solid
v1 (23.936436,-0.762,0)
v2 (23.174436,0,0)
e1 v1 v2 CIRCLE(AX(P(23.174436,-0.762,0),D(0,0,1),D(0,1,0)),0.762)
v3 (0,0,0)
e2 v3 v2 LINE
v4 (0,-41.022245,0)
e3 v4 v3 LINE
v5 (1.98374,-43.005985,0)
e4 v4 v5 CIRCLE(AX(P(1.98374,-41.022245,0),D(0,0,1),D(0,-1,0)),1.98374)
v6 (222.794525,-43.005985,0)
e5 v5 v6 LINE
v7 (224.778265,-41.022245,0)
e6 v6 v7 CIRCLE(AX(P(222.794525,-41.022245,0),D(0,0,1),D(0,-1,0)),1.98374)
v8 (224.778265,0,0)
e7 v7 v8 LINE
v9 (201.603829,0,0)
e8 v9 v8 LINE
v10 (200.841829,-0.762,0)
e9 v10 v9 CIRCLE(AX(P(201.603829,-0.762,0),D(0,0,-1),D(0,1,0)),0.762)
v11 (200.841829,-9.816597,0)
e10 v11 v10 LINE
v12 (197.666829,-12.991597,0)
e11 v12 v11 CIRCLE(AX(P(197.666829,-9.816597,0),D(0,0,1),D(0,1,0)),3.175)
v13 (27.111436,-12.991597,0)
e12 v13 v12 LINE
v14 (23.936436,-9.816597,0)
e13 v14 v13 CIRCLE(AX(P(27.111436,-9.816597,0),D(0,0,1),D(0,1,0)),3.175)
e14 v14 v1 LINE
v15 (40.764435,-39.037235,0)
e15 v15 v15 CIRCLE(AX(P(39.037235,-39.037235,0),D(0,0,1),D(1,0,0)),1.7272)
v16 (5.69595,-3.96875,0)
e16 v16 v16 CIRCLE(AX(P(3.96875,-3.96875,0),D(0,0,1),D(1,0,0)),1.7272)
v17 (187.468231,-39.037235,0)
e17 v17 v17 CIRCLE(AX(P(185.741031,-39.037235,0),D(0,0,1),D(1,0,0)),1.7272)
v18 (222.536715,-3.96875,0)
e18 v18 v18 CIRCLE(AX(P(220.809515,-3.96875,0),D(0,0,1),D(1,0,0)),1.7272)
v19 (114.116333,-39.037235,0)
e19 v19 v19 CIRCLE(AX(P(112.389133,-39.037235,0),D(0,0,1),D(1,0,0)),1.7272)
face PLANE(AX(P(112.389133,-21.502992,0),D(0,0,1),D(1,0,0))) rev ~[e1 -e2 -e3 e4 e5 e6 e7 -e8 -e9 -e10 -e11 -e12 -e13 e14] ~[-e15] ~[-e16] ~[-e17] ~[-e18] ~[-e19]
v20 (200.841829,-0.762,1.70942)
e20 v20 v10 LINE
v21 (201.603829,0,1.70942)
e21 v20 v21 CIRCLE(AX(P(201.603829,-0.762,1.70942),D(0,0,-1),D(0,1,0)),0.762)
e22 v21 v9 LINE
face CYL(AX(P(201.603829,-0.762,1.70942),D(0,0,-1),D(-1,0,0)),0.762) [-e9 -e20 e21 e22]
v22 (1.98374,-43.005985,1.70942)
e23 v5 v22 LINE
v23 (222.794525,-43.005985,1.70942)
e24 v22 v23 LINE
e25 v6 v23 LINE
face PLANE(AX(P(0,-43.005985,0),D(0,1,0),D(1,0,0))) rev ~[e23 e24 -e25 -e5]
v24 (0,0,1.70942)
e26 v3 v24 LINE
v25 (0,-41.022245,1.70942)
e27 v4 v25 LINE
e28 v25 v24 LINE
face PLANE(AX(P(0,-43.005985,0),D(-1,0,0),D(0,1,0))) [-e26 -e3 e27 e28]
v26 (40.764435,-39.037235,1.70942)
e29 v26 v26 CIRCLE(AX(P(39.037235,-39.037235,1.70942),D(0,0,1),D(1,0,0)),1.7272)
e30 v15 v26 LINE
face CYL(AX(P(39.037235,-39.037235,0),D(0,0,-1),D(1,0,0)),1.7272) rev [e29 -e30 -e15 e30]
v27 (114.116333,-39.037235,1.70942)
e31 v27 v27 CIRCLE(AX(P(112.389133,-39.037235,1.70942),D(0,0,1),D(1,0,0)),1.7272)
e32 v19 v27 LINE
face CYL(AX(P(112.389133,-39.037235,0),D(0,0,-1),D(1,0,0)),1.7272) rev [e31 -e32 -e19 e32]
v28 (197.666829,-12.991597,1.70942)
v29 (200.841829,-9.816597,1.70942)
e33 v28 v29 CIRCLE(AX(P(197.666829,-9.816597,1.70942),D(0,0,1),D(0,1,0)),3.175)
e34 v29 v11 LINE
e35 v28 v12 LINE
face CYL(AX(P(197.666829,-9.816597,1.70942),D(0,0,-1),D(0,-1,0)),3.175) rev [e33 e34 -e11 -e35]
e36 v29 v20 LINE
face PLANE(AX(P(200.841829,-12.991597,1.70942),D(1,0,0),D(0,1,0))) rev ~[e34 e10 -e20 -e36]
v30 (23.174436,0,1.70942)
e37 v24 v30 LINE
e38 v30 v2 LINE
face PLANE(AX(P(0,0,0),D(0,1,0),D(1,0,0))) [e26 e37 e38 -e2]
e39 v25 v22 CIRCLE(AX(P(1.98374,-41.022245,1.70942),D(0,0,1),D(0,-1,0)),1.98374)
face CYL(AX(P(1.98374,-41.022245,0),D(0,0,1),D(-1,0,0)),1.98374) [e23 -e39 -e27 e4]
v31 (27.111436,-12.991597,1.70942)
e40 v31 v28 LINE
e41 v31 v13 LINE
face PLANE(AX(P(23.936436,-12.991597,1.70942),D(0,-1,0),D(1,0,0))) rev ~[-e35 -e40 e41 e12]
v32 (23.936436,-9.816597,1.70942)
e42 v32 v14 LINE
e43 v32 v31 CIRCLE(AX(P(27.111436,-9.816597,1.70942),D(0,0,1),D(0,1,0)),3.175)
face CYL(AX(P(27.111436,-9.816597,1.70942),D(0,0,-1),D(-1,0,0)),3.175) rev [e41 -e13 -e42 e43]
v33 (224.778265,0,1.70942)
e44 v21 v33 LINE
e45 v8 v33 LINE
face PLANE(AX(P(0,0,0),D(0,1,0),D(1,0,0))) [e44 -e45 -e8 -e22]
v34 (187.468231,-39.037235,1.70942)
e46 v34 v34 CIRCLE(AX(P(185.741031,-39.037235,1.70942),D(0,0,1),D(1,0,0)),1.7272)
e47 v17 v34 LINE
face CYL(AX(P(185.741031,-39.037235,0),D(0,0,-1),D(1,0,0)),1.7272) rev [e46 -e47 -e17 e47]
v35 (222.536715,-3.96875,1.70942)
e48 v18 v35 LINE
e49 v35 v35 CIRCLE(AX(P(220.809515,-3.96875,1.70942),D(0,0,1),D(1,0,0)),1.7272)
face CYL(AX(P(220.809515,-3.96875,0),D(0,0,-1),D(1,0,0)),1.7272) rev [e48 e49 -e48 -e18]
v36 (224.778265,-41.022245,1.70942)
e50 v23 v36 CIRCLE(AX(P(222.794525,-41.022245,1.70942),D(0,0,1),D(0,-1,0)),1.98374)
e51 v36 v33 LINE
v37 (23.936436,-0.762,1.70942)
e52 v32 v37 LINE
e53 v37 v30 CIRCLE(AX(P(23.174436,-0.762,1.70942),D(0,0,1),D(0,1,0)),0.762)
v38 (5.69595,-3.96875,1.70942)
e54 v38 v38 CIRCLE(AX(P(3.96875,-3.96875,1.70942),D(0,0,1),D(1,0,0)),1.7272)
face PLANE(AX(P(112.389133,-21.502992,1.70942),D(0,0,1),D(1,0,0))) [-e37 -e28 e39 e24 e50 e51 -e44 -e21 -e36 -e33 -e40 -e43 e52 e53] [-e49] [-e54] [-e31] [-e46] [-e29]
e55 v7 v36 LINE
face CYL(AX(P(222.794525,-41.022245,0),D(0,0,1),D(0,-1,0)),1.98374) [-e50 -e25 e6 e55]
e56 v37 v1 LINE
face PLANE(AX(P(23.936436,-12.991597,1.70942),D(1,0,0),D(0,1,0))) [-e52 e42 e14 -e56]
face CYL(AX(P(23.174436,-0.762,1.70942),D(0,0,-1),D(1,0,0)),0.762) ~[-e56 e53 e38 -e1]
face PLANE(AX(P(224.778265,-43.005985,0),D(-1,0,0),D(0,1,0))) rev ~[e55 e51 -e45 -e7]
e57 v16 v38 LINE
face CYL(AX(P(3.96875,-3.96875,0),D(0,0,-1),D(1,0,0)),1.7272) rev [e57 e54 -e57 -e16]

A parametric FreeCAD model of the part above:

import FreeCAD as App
import Part
import Sketcher

V = App.Vector
Q = App.Units.Quantity


def edges_at(feature, points):
    """Names of the edges that pass closest to the given points."""
    edges = feature.Shape.Edges
    near = lambda p: min(range(len(edges)), key=lambda i: edges[i].distToShape(Part.Vertex(*p))[0])
    return sorted({f"Edge{near(p) + 1}" for p in points})

doc = App.newDocument("Part")
params = doc.addObject("Spreadsheet::Sheet", "Params")
for row, (alias, value) in enumerate([
    ("sketch1_diameter", "0.136 in"),
    ("pad1_length", "0.0673 in"),
    ("fillet_radius", "0.0781 in"),
    ("fillet2_radius", "0.125 in"),
    ("fillet3_radius", "0.03 in"),
], start=1):
    params.set(f"A{row}", alias)
    params.set(f"B{row}", "=" + value)
    params.setAlias(f"B{row}", alias)

body = doc.addObject("PartDesign::Body", "Body")

# Sketch on XY plane
sketch1 = doc.addObject("Sketcher::SketchObject", "Sketch")
body.addObject(sketch1)
sketch1.AttachmentSupport = (doc.XY_Plane, [""])
sketch1.MapMode = "FlatFace"
sketch1.addGeometry(Part.LineSegment(V(0, 0, 0), V(0, -43.005985, 0)), False)
sketch1.addGeometry(Part.LineSegment(V(0, -43.005985, 0), V(224.778265, -43.005985, 0)), False)
sketch1.addGeometry(Part.LineSegment(V(224.778265, -43.005985, 0), V(224.778265, 0, 0)), False)
sketch1.addGeometry(Part.LineSegment(V(224.778265, 0, 0), V(0, 0, 0)), False)
sketch1.addGeometry(Part.Circle(V(39.037235, -39.037235, 0), V(0, 0, 1), 1.7272), False)
sketch1.addGeometry(Part.Circle(V(112.389133, -39.037235, 0), V(0, 0, 1), 1.7272), False)
sketch1.addGeometry(Part.Circle(V(185.741031, -39.037235, 0), V(0, 0, 1), 1.7272), False)
sketch1.addGeometry(Part.Circle(V(3.96875, -3.96875, 0), V(0, 0, 1), 1.7272), False)
sketch1.addGeometry(Part.Circle(V(220.809515, -3.96875, 0), V(0, 0, 1), 1.7272), False)
sketch1.addConstraint(Sketcher.Constraint("Coincident", 0, 2, 1, 1))
sketch1.addConstraint(Sketcher.Constraint("Coincident", 1, 2, 2, 1))
sketch1.addConstraint(Sketcher.Constraint("Coincident", 2, 2, 3, 1))
sketch1.addConstraint(Sketcher.Constraint("Coincident", 3, 2, 0, 1))
sketch1.addConstraint(Sketcher.Constraint("Vertical", 0))
sketch1.addConstraint(Sketcher.Constraint("Horizontal", 1))
sketch1.addConstraint(Sketcher.Constraint("Vertical", 2))
sketch1.addConstraint(Sketcher.Constraint("Horizontal", 3))
sketch1.addConstraint(Sketcher.Constraint("Coincident", 3, 2, -1, 1))
sketch1.addConstraint(Sketcher.Constraint("Equal", 4, 5))
sketch1.addConstraint(Sketcher.Constraint("Equal", 5, 6))
sketch1.addConstraint(Sketcher.Constraint("Equal", 6, 7))
sketch1.addConstraint(Sketcher.Constraint("Equal", 7, 8))
sketch1.addConstraint(Sketcher.Constraint("Horizontal", 4, 3, 5, 3))
sketch1.addConstraint(Sketcher.Constraint("Horizontal", 5, 3, 6, 3))
sketch1.addConstraint(Sketcher.Constraint("Horizontal", 7, 3, 8, 3))
sketch1.addConstraint(Sketcher.Constraint("Diameter", 4, Q("0.136 in")))
sketch1.addConstraint(Sketcher.Constraint("DistanceX", -1, 1, 7, 3, Q("0.15625 in")))
sketch1.addConstraint(Sketcher.Constraint("DistanceY", 7, 3, -1, 1, Q("0.15625 in")))
sketch1.addConstraint(Sketcher.Constraint("DistanceY", 0, 2, 4, 3, Q("0.15625 in")))
sketch1.addConstraint(Sketcher.Constraint("DistanceX", 8, 3, 1, 2, Q("0.15625 in")))
sketch1.addConstraint(Sketcher.Constraint("DistanceX", 4, 3, 5, 3, Q("73.351898 mm")))
sketch1.addConstraint(Sketcher.Constraint("DistanceX", 1, 1, 1, 2, Q("224.778265 mm")))
sketch1.addConstraint(Sketcher.Constraint("DistanceY", 0, 2, 0, 1, Q("43.005985 mm")))
sketch1.addConstraint(Sketcher.Constraint("DistanceX", -1, 1, 6, 3, Q("185.741031 mm")))
sketch1.addConstraint(Sketcher.Constraint("DistanceX", 4, 3, 8, 3, Q("181.772281 mm")))
sketch1.setExpression("Constraints[16]", "Params.sketch1_diameter")
pad1 = doc.addObject("PartDesign::Pad", "Pad")
body.addObject(pad1)
pad1.Profile = sketch1
pad1.setExpression("Length", "Params.pad1_length")
doc.recompute()

fillet = doc.addObject("PartDesign::Fillet", "Fillet")
body.addObject(fillet)
fillet.Base = (pad1, edges_at(pad1, [(0, -43.006, 0.855), (224.778, -43.006, 0.855)]))
fillet.setExpression("Radius", "Params.fillet_radius")

# Sketch on XY plane
sketch2 = doc.addObject("Sketcher::SketchObject", "Sketch001")
body.addObject(sketch2)
sketch2.AttachmentSupport = (doc.XY_Plane, [""])
sketch2.MapMode = "FlatFace"
sketch2.AttachmentOffset = App.Placement(V(0, 0, 0.0673 * 25.4), App.Rotation())
sketch2.addGeometry(Part.LineSegment(V(23.936436, 0, 0), V(23.936436, -12.991597, 0)), False)
sketch2.addGeometry(Part.LineSegment(V(23.936436, -12.991597, 0), V(200.841829, -12.991597, 0)), False)
sketch2.addGeometry(Part.LineSegment(V(200.841829, -12.991597, 0), V(200.841829, 0, 0)), False)
sketch2.addGeometry(Part.LineSegment(V(200.841829, 0, 0), V(23.936436, 0, 0)), False)
sketch2.addConstraint(Sketcher.Constraint("Coincident", 0, 2, 1, 1))
sketch2.addConstraint(Sketcher.Constraint("Coincident", 1, 2, 2, 1))
sketch2.addConstraint(Sketcher.Constraint("Coincident", 2, 2, 3, 1))
sketch2.addConstraint(Sketcher.Constraint("Coincident", 3, 2, 0, 1))
sketch2.addConstraint(Sketcher.Constraint("Vertical", 0))
sketch2.addConstraint(Sketcher.Constraint("Horizontal", 1))
sketch2.addConstraint(Sketcher.Constraint("Vertical", 2))
sketch2.addConstraint(Sketcher.Constraint("Horizontal", 3))
sketch2.addConstraint(Sketcher.Constraint("PointOnObject", 2, 2, -1))
sketch2.addConstraint(Sketcher.Constraint("DistanceX", 1, 1, 1, 2, Q("176.905393 mm")))
sketch2.addConstraint(Sketcher.Constraint("DistanceY", 0, 2, 0, 1, Q("12.991597 mm")))
sketch2.addConstraint(Sketcher.Constraint("DistanceX", -1, 1, 1, 2, Q("200.841829 mm")))
pocket1 = doc.addObject("PartDesign::Pocket", "Pocket")
body.addObject(pocket1)
pocket1.Profile = sketch2
pocket1.Type = "ThroughAll"
doc.recompute()

fillet2 = doc.addObject("PartDesign::Fillet", "Fillet001")
body.addObject(fillet2)
fillet2.Base = (pocket1, edges_at(pocket1, [(200.842, -12.992, 0.855), (23.936, -12.992, 0.855)]))
fillet2.setExpression("Radius", "Params.fillet2_radius")
doc.recompute()

fillet3 = doc.addObject("PartDesign::Fillet", "Fillet002")
body.addObject(fillet3)
fillet3.Base = (fillet2, edges_at(fillet2, [(23.936, 0, 0.855), (200.842, 0, 0.855)]))
fillet3.setExpression("Radius", "Params.fillet3_radius")

doc.recompute()
